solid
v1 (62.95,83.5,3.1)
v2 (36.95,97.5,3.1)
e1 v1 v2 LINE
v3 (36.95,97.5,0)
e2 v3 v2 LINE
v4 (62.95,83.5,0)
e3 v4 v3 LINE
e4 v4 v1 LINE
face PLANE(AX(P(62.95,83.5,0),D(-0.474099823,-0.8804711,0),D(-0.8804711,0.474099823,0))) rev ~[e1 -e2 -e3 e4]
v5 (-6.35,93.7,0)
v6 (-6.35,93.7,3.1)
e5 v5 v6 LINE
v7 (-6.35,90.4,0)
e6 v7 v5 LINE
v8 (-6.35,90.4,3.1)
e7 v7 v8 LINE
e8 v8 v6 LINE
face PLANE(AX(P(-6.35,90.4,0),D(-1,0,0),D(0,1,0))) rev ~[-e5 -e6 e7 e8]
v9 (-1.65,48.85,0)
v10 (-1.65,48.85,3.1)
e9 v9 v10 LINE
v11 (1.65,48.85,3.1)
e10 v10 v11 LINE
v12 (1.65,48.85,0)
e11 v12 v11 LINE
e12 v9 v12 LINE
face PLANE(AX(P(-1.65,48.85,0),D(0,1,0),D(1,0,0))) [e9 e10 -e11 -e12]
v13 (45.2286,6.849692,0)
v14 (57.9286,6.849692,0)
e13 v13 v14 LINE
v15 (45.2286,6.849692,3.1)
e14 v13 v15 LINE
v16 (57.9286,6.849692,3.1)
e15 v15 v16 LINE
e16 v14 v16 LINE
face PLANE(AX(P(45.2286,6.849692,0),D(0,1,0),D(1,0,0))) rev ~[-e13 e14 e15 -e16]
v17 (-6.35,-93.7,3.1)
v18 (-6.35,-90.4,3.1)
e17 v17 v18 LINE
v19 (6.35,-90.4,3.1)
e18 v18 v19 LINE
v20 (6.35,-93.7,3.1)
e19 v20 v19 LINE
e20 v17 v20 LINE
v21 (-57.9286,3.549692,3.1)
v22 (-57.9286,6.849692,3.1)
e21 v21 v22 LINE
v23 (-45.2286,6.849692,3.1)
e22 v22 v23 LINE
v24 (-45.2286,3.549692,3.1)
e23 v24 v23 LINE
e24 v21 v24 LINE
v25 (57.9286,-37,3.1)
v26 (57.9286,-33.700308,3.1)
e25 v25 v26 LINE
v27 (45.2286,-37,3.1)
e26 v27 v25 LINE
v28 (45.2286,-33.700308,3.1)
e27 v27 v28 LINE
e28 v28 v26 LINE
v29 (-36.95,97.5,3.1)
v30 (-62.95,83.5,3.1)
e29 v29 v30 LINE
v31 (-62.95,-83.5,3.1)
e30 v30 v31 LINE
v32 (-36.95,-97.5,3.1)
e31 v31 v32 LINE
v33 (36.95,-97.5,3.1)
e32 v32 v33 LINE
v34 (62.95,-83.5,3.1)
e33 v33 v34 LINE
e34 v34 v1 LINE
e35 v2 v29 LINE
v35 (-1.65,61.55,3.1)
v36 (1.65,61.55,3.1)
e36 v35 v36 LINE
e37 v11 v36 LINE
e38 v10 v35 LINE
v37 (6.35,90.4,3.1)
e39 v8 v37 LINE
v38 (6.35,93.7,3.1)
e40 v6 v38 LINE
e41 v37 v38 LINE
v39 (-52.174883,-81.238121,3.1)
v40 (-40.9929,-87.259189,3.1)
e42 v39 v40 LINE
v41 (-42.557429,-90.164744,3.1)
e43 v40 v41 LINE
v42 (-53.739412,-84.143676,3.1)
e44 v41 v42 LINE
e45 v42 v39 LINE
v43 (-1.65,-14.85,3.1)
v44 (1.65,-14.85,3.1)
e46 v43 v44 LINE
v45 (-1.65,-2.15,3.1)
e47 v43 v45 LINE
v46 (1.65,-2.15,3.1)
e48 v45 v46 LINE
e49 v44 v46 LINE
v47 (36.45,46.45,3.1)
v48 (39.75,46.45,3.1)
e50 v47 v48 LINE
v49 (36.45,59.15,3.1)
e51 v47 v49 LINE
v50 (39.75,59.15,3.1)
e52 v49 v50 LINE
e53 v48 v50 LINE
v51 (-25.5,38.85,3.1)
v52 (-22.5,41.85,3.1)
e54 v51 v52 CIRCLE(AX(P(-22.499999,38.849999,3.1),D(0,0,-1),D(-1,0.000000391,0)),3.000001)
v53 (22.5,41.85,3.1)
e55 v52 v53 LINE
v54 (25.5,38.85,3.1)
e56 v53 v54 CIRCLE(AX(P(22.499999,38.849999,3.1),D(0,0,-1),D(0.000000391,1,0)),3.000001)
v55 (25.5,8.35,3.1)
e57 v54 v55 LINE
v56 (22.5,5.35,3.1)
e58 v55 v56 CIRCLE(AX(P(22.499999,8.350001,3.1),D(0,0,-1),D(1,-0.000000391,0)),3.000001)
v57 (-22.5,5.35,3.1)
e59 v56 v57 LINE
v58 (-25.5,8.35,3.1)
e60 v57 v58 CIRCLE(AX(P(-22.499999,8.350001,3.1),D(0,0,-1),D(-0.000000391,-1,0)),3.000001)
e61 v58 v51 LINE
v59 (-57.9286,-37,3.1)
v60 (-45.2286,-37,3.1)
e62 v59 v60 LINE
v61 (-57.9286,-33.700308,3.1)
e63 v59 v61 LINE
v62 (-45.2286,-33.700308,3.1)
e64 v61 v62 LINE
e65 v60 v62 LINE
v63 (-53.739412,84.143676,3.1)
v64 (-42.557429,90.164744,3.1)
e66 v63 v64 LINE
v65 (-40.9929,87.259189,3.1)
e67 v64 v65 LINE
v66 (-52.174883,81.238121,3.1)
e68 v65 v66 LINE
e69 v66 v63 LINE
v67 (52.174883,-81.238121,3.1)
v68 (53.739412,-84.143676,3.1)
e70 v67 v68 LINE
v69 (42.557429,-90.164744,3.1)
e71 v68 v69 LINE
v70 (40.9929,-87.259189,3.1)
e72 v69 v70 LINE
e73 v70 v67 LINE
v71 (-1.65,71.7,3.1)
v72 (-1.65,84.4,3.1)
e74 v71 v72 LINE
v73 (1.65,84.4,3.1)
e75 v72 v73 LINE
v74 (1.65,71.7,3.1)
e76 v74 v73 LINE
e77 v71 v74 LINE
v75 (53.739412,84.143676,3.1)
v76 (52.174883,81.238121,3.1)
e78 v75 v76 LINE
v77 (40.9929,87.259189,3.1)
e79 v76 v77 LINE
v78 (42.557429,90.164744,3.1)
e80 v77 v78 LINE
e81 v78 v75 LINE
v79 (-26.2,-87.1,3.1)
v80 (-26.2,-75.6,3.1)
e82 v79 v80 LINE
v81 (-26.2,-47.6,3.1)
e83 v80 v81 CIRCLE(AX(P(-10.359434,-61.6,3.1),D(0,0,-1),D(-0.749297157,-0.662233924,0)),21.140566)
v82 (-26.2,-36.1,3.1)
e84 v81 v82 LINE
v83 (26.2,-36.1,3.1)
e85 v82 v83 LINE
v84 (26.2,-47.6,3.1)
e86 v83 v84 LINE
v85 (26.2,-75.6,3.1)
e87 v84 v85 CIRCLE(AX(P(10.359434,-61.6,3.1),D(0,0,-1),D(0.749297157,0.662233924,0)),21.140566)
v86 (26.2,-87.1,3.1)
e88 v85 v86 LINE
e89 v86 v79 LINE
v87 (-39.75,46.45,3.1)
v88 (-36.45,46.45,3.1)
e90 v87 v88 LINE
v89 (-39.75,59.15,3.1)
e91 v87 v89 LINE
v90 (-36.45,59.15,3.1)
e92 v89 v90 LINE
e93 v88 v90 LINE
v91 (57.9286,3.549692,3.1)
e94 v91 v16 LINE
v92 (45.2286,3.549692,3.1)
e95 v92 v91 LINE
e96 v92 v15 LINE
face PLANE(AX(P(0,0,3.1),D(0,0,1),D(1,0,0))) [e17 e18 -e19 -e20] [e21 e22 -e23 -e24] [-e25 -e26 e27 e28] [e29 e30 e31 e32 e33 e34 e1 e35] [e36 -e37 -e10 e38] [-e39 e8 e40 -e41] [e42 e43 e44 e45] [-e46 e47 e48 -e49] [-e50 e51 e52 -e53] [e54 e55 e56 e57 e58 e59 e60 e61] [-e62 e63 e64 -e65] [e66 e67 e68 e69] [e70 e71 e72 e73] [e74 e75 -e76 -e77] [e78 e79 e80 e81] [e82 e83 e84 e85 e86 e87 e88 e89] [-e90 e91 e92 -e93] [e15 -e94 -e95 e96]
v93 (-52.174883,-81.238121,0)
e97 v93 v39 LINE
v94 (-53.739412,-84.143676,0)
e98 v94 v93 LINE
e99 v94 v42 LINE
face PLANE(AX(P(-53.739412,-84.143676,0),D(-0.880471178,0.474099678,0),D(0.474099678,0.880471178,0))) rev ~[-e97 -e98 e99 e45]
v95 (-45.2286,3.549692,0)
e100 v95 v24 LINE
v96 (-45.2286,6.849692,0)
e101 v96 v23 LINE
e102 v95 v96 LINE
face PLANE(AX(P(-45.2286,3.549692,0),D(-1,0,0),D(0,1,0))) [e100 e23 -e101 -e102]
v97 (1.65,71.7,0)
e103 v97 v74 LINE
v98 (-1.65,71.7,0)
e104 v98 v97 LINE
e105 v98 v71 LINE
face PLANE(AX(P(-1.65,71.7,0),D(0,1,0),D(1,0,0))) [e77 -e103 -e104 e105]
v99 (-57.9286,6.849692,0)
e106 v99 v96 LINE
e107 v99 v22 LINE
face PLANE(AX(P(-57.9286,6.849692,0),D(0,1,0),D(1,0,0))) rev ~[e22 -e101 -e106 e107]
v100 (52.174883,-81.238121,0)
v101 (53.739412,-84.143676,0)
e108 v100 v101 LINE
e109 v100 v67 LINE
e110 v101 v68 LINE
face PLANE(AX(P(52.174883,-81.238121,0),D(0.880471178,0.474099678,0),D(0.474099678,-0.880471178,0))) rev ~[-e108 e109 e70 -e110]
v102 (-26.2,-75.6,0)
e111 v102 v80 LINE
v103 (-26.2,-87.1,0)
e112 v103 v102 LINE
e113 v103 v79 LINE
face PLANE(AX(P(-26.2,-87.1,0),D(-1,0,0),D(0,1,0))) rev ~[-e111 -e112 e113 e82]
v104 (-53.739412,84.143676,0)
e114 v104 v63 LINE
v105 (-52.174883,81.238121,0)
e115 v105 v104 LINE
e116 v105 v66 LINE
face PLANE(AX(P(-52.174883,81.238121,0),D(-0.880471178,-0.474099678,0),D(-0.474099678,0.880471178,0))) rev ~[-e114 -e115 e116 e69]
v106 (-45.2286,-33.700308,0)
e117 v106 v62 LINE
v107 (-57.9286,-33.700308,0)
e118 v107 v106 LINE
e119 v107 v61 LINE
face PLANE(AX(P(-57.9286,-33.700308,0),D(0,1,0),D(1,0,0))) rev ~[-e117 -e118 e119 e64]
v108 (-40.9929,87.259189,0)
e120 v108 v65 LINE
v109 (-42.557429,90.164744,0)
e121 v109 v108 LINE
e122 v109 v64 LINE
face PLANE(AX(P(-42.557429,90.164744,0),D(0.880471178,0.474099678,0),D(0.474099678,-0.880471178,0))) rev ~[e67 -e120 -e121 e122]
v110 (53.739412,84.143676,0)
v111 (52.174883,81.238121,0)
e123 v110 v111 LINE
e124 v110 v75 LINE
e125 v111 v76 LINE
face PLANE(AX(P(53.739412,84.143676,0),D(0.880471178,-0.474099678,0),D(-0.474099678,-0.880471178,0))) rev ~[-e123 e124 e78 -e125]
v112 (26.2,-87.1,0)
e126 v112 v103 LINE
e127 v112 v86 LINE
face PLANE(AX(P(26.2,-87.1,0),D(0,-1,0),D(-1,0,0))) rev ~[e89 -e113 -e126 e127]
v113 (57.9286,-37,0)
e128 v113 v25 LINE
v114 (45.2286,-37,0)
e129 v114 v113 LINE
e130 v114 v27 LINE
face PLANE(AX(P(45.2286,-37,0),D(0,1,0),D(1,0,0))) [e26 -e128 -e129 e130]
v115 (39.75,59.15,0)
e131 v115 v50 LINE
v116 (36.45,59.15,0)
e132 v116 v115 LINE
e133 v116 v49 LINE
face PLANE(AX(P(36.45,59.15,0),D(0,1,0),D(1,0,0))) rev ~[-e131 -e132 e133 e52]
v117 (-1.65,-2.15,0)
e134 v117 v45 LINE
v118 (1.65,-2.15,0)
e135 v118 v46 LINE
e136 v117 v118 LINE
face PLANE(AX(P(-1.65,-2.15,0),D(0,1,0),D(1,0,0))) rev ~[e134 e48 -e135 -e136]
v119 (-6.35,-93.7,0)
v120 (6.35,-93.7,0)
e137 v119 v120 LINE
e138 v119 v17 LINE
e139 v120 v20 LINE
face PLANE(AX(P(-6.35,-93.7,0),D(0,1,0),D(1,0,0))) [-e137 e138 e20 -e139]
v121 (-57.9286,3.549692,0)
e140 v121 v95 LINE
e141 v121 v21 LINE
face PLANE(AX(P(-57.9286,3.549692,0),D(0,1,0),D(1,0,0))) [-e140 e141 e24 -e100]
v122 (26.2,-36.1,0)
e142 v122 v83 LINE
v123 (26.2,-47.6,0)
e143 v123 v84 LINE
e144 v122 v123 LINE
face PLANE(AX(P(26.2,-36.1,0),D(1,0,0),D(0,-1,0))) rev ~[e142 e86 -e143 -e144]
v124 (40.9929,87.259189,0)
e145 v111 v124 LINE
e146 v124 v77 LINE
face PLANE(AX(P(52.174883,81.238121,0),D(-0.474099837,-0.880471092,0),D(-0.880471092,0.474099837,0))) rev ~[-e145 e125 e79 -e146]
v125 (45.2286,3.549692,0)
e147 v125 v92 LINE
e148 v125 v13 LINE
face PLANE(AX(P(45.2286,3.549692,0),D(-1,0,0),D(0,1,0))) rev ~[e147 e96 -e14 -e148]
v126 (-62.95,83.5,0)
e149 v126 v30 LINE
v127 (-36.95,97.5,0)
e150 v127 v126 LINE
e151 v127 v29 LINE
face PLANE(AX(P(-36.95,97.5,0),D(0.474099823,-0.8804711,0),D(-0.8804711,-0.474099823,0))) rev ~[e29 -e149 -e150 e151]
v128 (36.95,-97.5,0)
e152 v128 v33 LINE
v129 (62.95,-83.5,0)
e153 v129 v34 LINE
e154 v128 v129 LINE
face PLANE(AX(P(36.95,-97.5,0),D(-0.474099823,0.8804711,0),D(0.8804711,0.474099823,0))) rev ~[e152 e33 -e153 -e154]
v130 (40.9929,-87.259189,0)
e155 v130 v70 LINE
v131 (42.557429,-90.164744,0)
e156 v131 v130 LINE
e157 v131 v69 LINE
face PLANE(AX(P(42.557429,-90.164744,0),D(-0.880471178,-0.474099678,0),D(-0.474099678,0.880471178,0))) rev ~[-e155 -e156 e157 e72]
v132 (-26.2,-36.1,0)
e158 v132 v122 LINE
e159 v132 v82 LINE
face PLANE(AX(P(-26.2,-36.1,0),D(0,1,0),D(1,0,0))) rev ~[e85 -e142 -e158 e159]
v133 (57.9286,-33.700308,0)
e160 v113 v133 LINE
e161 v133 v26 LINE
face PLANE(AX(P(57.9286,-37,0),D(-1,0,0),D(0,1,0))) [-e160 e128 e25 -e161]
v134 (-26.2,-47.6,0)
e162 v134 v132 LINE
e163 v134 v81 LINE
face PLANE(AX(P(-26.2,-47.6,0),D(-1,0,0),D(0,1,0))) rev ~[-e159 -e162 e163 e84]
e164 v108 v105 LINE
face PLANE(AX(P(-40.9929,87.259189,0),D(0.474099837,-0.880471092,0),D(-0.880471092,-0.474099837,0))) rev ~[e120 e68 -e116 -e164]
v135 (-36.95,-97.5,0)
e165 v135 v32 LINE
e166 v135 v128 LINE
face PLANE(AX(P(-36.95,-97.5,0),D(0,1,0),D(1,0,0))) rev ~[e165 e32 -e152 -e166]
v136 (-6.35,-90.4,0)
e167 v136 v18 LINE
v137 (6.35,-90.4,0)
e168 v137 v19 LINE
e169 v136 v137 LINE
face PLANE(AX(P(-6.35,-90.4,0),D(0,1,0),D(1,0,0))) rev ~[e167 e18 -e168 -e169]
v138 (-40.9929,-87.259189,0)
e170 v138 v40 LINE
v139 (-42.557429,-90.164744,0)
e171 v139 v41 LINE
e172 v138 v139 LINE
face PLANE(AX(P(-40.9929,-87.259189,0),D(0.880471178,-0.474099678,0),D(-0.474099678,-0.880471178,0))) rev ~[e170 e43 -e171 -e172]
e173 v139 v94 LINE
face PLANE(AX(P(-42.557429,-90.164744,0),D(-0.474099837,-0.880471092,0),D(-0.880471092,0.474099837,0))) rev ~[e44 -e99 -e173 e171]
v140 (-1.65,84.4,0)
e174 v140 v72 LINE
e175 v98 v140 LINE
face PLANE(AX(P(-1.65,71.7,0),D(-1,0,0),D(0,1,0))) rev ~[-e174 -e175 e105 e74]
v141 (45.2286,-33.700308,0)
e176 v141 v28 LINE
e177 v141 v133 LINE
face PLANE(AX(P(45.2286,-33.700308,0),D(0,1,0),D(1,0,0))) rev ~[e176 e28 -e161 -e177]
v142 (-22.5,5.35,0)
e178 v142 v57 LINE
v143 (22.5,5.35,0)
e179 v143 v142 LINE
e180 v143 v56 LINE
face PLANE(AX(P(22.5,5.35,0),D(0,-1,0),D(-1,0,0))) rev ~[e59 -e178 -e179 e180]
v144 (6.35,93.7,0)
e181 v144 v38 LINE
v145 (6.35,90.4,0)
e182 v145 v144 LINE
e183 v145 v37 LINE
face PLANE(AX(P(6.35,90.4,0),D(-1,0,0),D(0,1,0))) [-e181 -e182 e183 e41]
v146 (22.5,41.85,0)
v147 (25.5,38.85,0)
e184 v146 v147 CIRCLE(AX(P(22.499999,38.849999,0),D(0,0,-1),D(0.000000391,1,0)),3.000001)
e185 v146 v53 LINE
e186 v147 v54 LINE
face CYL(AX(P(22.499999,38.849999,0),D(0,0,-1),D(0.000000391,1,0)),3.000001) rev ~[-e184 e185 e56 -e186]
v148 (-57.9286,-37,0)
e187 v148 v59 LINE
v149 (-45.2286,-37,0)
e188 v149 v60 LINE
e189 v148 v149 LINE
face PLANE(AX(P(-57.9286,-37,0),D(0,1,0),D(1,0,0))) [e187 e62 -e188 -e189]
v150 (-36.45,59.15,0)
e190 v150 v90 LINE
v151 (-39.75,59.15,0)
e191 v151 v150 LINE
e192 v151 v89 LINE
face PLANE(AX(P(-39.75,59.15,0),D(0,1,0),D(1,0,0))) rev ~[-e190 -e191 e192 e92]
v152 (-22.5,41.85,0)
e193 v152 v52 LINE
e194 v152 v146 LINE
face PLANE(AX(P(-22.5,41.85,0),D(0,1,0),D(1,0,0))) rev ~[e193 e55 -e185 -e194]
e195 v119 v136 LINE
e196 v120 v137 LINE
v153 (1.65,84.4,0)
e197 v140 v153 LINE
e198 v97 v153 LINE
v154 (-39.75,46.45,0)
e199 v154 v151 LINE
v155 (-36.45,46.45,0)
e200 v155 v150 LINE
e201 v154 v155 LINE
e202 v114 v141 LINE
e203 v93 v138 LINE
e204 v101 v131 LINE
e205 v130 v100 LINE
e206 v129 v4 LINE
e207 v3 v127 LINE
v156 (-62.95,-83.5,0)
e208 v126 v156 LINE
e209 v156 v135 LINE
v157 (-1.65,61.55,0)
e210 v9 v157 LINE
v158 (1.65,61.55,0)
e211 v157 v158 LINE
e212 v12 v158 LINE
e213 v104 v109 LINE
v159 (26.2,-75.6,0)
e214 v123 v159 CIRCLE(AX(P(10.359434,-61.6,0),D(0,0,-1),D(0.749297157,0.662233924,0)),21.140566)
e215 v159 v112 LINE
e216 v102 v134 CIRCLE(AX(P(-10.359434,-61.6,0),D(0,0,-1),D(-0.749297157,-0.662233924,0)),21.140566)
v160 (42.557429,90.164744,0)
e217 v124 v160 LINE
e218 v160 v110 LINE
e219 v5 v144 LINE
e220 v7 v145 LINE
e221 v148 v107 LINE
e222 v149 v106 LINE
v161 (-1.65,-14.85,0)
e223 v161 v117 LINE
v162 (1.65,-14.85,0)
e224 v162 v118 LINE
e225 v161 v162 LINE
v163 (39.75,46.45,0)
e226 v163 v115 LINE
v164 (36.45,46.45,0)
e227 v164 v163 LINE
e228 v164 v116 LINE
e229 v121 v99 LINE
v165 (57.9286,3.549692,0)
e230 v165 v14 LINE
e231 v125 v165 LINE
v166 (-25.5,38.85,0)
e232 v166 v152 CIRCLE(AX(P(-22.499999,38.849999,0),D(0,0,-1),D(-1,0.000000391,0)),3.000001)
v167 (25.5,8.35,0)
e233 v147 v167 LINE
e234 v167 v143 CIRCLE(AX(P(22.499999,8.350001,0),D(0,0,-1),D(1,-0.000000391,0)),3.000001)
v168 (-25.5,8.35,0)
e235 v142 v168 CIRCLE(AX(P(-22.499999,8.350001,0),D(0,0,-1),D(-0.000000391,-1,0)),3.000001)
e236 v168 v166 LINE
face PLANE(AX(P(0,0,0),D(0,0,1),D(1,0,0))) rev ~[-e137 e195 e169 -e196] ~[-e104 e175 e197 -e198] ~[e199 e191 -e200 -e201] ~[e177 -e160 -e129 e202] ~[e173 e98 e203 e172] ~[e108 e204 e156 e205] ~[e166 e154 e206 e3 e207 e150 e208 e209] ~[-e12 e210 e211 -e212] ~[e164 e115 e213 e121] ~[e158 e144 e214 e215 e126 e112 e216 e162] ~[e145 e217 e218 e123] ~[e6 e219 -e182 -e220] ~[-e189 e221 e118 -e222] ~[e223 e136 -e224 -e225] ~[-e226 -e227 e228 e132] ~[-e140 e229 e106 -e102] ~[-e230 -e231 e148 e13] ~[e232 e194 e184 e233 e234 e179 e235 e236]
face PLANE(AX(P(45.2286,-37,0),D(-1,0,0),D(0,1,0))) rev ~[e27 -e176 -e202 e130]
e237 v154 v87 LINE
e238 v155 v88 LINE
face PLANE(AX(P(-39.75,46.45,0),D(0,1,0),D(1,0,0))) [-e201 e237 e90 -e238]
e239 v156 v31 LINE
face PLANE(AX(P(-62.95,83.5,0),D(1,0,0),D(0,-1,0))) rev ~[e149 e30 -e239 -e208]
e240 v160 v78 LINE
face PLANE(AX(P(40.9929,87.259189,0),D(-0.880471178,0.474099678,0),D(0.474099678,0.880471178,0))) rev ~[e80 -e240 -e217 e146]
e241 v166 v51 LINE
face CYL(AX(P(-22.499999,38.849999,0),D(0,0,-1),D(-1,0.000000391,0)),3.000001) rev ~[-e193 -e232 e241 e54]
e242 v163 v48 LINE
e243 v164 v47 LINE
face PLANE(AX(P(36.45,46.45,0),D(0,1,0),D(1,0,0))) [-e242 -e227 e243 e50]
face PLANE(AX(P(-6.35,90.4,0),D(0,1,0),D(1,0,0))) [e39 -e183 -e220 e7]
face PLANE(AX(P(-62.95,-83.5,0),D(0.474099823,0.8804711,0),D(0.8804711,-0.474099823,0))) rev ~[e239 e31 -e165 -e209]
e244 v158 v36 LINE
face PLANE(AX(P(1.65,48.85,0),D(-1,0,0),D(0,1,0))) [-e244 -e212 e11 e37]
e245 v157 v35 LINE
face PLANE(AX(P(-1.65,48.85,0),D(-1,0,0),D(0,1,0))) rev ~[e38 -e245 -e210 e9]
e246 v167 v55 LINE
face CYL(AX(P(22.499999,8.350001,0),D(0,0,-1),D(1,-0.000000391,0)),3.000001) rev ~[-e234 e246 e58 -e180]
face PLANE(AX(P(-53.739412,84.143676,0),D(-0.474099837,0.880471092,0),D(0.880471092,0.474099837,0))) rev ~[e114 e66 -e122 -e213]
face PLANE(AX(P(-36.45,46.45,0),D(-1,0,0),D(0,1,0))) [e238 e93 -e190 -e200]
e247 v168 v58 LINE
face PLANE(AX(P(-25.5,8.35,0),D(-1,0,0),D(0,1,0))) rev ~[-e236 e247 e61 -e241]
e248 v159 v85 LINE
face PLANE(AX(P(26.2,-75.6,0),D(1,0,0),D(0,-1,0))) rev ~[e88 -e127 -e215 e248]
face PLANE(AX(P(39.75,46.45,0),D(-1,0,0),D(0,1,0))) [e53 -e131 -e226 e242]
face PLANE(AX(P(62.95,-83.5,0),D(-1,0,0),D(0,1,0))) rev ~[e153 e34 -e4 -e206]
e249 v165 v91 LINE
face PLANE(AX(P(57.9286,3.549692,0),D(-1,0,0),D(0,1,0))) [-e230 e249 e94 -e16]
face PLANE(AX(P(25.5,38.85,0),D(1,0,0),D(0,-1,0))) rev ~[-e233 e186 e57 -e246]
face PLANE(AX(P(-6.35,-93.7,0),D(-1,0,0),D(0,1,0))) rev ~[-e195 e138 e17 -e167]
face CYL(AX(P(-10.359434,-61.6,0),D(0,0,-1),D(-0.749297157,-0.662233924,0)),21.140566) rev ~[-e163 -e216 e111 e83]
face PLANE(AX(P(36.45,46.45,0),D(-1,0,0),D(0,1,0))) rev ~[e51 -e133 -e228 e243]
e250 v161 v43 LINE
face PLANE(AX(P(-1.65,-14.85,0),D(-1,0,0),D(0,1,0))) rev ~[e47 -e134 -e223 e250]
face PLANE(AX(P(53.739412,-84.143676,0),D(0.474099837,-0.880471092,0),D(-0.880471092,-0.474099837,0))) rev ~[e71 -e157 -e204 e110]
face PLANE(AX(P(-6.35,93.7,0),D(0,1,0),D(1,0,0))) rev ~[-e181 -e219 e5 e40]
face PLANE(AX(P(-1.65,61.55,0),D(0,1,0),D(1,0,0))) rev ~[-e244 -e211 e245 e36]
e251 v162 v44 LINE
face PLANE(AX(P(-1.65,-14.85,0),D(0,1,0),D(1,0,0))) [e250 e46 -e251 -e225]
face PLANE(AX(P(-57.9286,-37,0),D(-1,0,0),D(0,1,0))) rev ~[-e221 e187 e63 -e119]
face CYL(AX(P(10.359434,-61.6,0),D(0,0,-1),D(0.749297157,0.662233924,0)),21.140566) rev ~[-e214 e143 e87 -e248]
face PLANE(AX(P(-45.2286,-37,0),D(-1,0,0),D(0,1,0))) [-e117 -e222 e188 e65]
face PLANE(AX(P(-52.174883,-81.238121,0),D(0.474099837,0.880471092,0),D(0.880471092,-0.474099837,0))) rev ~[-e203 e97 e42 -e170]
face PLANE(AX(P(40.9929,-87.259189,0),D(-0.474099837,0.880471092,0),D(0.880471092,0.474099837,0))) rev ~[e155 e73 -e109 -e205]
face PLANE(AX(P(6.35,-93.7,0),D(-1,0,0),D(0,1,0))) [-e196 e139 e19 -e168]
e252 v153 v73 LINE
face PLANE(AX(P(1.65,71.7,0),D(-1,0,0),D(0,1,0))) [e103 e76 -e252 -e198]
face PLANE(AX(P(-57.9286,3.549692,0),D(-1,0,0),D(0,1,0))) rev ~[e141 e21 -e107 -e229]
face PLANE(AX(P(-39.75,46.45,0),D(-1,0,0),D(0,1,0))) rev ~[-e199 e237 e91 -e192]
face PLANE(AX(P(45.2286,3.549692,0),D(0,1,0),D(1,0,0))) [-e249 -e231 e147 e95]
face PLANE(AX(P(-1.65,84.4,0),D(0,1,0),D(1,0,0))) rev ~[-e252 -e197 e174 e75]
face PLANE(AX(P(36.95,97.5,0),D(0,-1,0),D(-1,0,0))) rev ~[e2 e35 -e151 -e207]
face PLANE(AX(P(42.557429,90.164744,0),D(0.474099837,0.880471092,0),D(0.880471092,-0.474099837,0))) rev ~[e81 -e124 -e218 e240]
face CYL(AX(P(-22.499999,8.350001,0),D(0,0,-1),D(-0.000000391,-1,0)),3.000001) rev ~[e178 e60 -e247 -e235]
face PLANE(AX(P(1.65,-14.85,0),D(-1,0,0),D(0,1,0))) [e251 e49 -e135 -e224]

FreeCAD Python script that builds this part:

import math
import FreeCAD as App
import Part
import Sketcher
from FreeCAD import Vector
Q = App.Units.Quantity

doc = App.newDocument("Part")
body = doc.addObject("PartDesign::Body", "Body")

sketch1 = body.newObject("Sketcher::SketchObject", "Sketch")
sketch1.AttachmentSupport = (doc.getObject("XY_Plane"), [""])
sketch1.MapMode = "FlatFace"
sketch1.addGeometry(Part.LineSegment(Vector(-63, -83.5, 0), Vector(-37, -97.5, 0)), False)
sketch1.addGeometry(Part.LineSegment(Vector(-37, -97.5, 0), Vector(37, -97.5, 0)), False)
sketch1.addGeometry(Part.LineSegment(Vector(37, -97.5, 0), Vector(63, -83.5, 0)), False)
sketch1.addGeometry(Part.LineSegment(Vector(63, -83.5, 0), Vector(63, 83.5, 0)), False)
sketch1.addGeometry(Part.LineSegment(Vector(63, 83.5, 0), Vector(37, 97.5, 0)), False)
sketch1.addGeometry(Part.LineSegment(Vector(37, 97.5, 0), Vector(-37, 97.5, 0)), False)
sketch1.addGeometry(Part.LineSegment(Vector(-37, 97.5, 0), Vector(-63, 83.5, 0)), False)
sketch1.addGeometry(Part.LineSegment(Vector(-63, 83.5, 0), Vector(-63, -83.5, 0)), False)
sketch1.addGeometry(Part.LineSegment(Vector(-42.6, -90.2, 0), Vector(-53.7, -84.1, 0)), False)
sketch1.addGeometry(Part.LineSegment(Vector(-53.7, -84.1, 0), Vector(-52.2, -81.2, 0)), False)
sketch1.addGeometry(Part.LineSegment(Vector(-52.2, -81.2, 0), Vector(-41, -87.3, 0)), False)
sketch1.addGeometry(Part.LineSegment(Vector(-41, -87.3, 0), Vector(-42.6, -90.2, 0)), False)
sketch1.addGeometry(Part.LineSegment(Vector(-45.2, -37, 0), Vector(-57.9, -37, 0)), False)
sketch1.addGeometry(Part.LineSegment(Vector(-57.9, -37, 0), Vector(-57.9, -33.7, 0)), False)
sketch1.addGeometry(Part.LineSegment(Vector(-57.9, -33.7, 0), Vector(-45.2, -33.7, 0)), False)
sketch1.addGeometry(Part.LineSegment(Vector(-45.2, -33.7, 0), Vector(-45.2, -37, 0)), False)
sketch1.addGeometry(Part.LineSegment(Vector(6.3, -93.7, 0), Vector(-6.3, -93.7, 0)), False)
sketch1.addGeometry(Part.LineSegment(Vector(-6.3, -93.7, 0), Vector(-6.3, -90.4, 0)), False)
sketch1.addGeometry(Part.LineSegment(Vector(-6.3, -90.4, 0), Vector(6.3, -90.4, 0)), False)
sketch1.addGeometry(Part.LineSegment(Vector(6.3, -90.4, 0), Vector(6.3, -93.7, 0)), False)
sketch1.addGeometry(Part.ArcOfCircle(Part.Circle(Vector(-10.4, -61.6, 0), Vector(0, 0, 1), 21.1), math.radians(139), math.radians(221)), False)
sketch1.addGeometry(Part.LineSegment(Vector(-26.2, -47.6, 0), Vector(-26.2, -36.1, 0)), False)
sketch1.addGeometry(Part.LineSegment(Vector(-26.2, -36.1, 0), Vector(26.2, -36.1, 0)), False)
sketch1.addGeometry(Part.LineSegment(Vector(26.2, -36.1, 0), Vector(26.2, -47.6, 0)), False)
sketch1.addGeometry(Part.ArcOfCircle(Part.Circle(Vector(10.4, -61.6, 0), Vector(0, 0, 1), 21.1), math.radians(-41), math.radians(41)), False)
sketch1.addGeometry(Part.LineSegment(Vector(26.2, -75.6, 0), Vector(26.2, -87.1, 0)), False)
sketch1.addGeometry(Part.LineSegment(Vector(26.2, -87.1, 0), Vector(-26.2, -87.1, 0)), False)
sketch1.addGeometry(Part.LineSegment(Vector(-26.2, -87.1, 0), Vector(-26.2, -75.6, 0)), False)
sketch1.addGeometry(Part.LineSegment(Vector(41, -87.3, 0), Vector(52.2, -81.2, 0)), False)
sketch1.addGeometry(Part.LineSegment(Vector(52.2, -81.2, 0), Vector(53.7, -84.1, 0)), False)
sketch1.addGeometry(Part.LineSegment(Vector(53.7, -84.1, 0), Vector(42.6, -90.2, 0)), False)
sketch1.addGeometry(Part.LineSegment(Vector(42.6, -90.2, 0), Vector(41, -87.3, 0)), False)
sketch1.addGeometry(Part.LineSegment(Vector(1.6, -14.8, 0), Vector(-1.6, -14.8, 0)), False)
sketch1.addGeometry(Part.LineSegment(Vector(-1.6, -14.8, 0), Vector(-1.6, -2.1, 0)), False)
sketch1.addGeometry(Part.LineSegment(Vector(-1.6, -2.1, 0), Vector(1.6, -2.1, 0)), False)
sketch1.addGeometry(Part.LineSegment(Vector(1.6, -2.1, 0), Vector(1.6, -14.8, 0)), False)
sketch1.addGeometry(Part.LineSegment(Vector(57.9, -37, 0), Vector(45.2, -37, 0)), False)
sketch1.addGeometry(Part.LineSegment(Vector(45.2, -37, 0), Vector(45.2, -33.7, 0)), False)
sketch1.addGeometry(Part.LineSegment(Vector(45.2, -33.7, 0), Vector(57.9, -33.7, 0)), False)
sketch1.addGeometry(Part.LineSegment(Vector(57.9, -33.7, 0), Vector(57.9, -37, 0)), False)
sketch1.addGeometry(Part.LineSegment(Vector(-45.2, 3.5, 0), Vector(-57.9, 3.5, 0)), False)
sketch1.addGeometry(Part.LineSegment(Vector(-57.9, 3.5, 0), Vector(-57.9, 6.8, 0)), False)
sketch1.addGeometry(Part.LineSegment(Vector(-57.9, 6.8, 0), Vector(-45.2, 6.8, 0)), False)
sketch1.addGeometry(Part.LineSegment(Vector(-45.2, 6.8, 0), Vector(-45.2, 3.5, 0)), False)
sketch1.addGeometry(Part.LineSegment(Vector(-36.5, 46.5, 0), Vector(-39.8, 46.5, 0)), False)
sketch1.addGeometry(Part.LineSegment(Vector(-39.8, 46.5, 0), Vector(-39.8, 59.1, 0)), False)
sketch1.addGeometry(Part.LineSegment(Vector(-39.8, 59.1, 0), Vector(-36.5, 59.1, 0)), False)
sketch1.addGeometry(Part.LineSegment(Vector(-36.5, 59.1, 0), Vector(-36.5, 46.5, 0)), False)
sketch1.addGeometry(Part.LineSegment(Vector(-53.7, 84.1, 0), Vector(-42.6, 90.2, 0)), False)
sketch1.addGeometry(Part.LineSegment(Vector(-42.6, 90.2, 0), Vector(-41, 87.3, 0)), False)
sketch1.addGeometry(Part.LineSegment(Vector(-41, 87.3, 0), Vector(-52.2, 81.2, 0)), False)
sketch1.addGeometry(Part.LineSegment(Vector(-52.2, 81.2, 0), Vector(-53.7, 84.1, 0)), False)
sketch1.addGeometry(Part.ArcOfCircle(Part.Circle(Vector(22.5, 8.4, 0), Vector(0, 0, 1), 3), math.radians(-90), math.radians(0)), False)
sketch1.addGeometry(Part.LineSegment(Vector(22.5, 5.3, 0), Vector(-22.5, 5.3, 0)), False)
sketch1.addGeometry(Part.ArcOfCircle(Part.Circle(Vector(-22.5, 8.4, 0), Vector(0, 0, 1), 3), math.radians(-180), math.radians(-90)), False)
sketch1.addGeometry(Part.LineSegment(Vector(-25.5, 8.3, 0), Vector(-25.5, 38.9, 0)), False)
sketch1.addGeometry(Part.ArcOfCircle(Part.Circle(Vector(-22.5, 38.8, 0), Vector(0, 0, 1), 3), math.radians(90), math.radians(180)), False)
sketch1.addGeometry(Part.LineSegment(Vector(-22.5, 41.9, 0), Vector(22.5, 41.9, 0)), False)
sketch1.addGeometry(Part.ArcOfCircle(Part.Circle(Vector(22.5, 38.8, 0), Vector(0, 0, 1), 3), math.radians(0), math.radians(90)), False)
sketch1.addGeometry(Part.LineSegment(Vector(25.5, 38.9, 0), Vector(25.5, 8.3, 0)), False)
sketch1.addGeometry(Part.LineSegment(Vector(57.9, 3.5, 0), Vector(45.2, 3.5, 0)), False)
sketch1.addGeometry(Part.LineSegment(Vector(45.2, 3.5, 0), Vector(45.2, 6.8, 0)), False)
sketch1.addGeometry(Part.LineSegment(Vector(45.2, 6.8, 0), Vector(57.9, 6.8, 0)), False)
sketch1.addGeometry(Part.LineSegment(Vector(57.9, 6.8, 0), Vector(57.9, 3.5, 0)), False)
sketch1.addGeometry(Part.LineSegment(Vector(1.6, 48.9, 0), Vector(-1.6, 48.9, 0)), False)
sketch1.addGeometry(Part.LineSegment(Vector(-1.6, 48.9, 0), Vector(-1.6, 61.5, 0)), False)
sketch1.addGeometry(Part.LineSegment(Vector(-1.6, 61.5, 0), Vector(1.6, 61.5, 0)), False)
sketch1.addGeometry(Part.LineSegment(Vector(1.6, 61.5, 0), Vector(1.6, 48.9, 0)), False)
sketch1.addGeometry(Part.LineSegment(Vector(1.6, 71.7, 0), Vector(-1.6, 71.7, 0)), False)
sketch1.addGeometry(Part.LineSegment(Vector(-1.6, 71.7, 0), Vector(-1.6, 84.4, 0)), False)
sketch1.addGeometry(Part.LineSegment(Vector(-1.6, 84.4, 0), Vector(1.6, 84.4, 0)), False)
sketch1.addGeometry(Part.LineSegment(Vector(1.6, 84.4, 0), Vector(1.6, 71.7, 0)), False)
sketch1.addGeometry(Part.LineSegment(Vector(6.3, 90.4, 0), Vector(-6.3, 90.4, 0)), False)
sketch1.addGeometry(Part.LineSegment(Vector(-6.3, 90.4, 0), Vector(-6.3, 93.7, 0)), False)
sketch1.addGeometry(Part.LineSegment(Vector(-6.3, 93.7, 0), Vector(6.3, 93.7, 0)), False)
sketch1.addGeometry(Part.LineSegment(Vector(6.3, 93.7, 0), Vector(6.3, 90.4, 0)), False)
sketch1.addGeometry(Part.LineSegment(Vector(39.8, 46.5, 0), Vector(36.5, 46.5, 0)), False)
sketch1.addGeometry(Part.LineSegment(Vector(36.5, 46.5, 0), Vector(36.5, 59.1, 0)), False)
sketch1.addGeometry(Part.LineSegment(Vector(36.5, 59.1, 0), Vector(39.8, 59.1, 0)), False)
sketch1.addGeometry(Part.LineSegment(Vector(39.8, 59.1, 0), Vector(39.8, 46.5, 0)), False)
sketch1.addGeometry(Part.LineSegment(Vector(53.7, 84.1, 0), Vector(52.2, 81.2, 0)), False)
sketch1.addGeometry(Part.LineSegment(Vector(52.2, 81.2, 0), Vector(41, 87.3, 0)), False)
sketch1.addGeometry(Part.LineSegment(Vector(41, 87.3, 0), Vector(42.6, 90.2, 0)), False)
sketch1.addGeometry(Part.LineSegment(Vector(42.6, 90.2, 0), Vector(53.7, 84.1, 0)), False)
sketch1.addConstraint(Sketcher.Constraint("Coincident", 0, 2, 1, 1))
sketch1.addConstraint(Sketcher.Constraint("Coincident", 1, 2, 2, 1))
sketch1.addConstraint(Sketcher.Constraint("Coincident", 2, 2, 3, 1))
sketch1.addConstraint(Sketcher.Constraint("Coincident", 3, 2, 4, 1))
sketch1.addConstraint(Sketcher.Constraint("Coincident", 4, 2, 5, 1))
sketch1.addConstraint(Sketcher.Constraint("Coincident", 5, 2, 6, 1))
sketch1.addConstraint(Sketcher.Constraint("Coincident", 6, 2, 7, 1))
sketch1.addConstraint(Sketcher.Constraint("Coincident", 7, 2, 0, 1))
sketch1.addConstraint(Sketcher.Constraint("Coincident", 8, 2, 9, 1))
sketch1.addConstraint(Sketcher.Constraint("Coincident", 9, 2, 10, 1))
sketch1.addConstraint(Sketcher.Constraint("Coincident", 10, 2, 11, 1))
sketch1.addConstraint(Sketcher.Constraint("Coincident", 11, 2, 8, 1))
sketch1.addConstraint(Sketcher.Constraint("Coincident", 12, 2, 13, 1))
sketch1.addConstraint(Sketcher.Constraint("Coincident", 13, 2, 14, 1))
sketch1.addConstraint(Sketcher.Constraint("Coincident", 14, 2, 15, 1))
sketch1.addConstraint(Sketcher.Constraint("Coincident", 15, 2, 12, 1))
sketch1.addConstraint(Sketcher.Constraint("Coincident", 16, 2, 17, 1))
sketch1.addConstraint(Sketcher.Constraint("Coincident", 17, 2, 18, 1))
sketch1.addConstraint(Sketcher.Constraint("Coincident", 18, 2, 19, 1))
sketch1.addConstraint(Sketcher.Constraint("Coincident", 19, 2, 16, 1))
sketch1.addConstraint(Sketcher.Constraint("Coincident", 20, 1, 21, 1))
sketch1.addConstraint(Sketcher.Constraint("Coincident", 21, 2, 22, 1))
sketch1.addConstraint(Sketcher.Constraint("Coincident", 22, 2, 23, 1))
sketch1.addConstraint(Sketcher.Constraint("Coincident", 23, 2, 24, 2))
sketch1.addConstraint(Sketcher.Constraint("Coincident", 24, 1, 25, 1))
sketch1.addConstraint(Sketcher.Constraint("Coincident", 25, 2, 26, 1))
sketch1.addConstraint(Sketcher.Constraint("Coincident", 26, 2, 27, 1))
sketch1.addConstraint(Sketcher.Constraint("Coincident", 27, 2, 20, 2))
sketch1.addConstraint(Sketcher.Constraint("Coincident", 28, 2, 29, 1))
sketch1.addConstraint(Sketcher.Constraint("Coincident", 29, 2, 30, 1))
sketch1.addConstraint(Sketcher.Constraint("Coincident", 30, 2, 31, 1))
sketch1.addConstraint(Sketcher.Constraint("Coincident", 31, 2, 28, 1))
sketch1.addConstraint(Sketcher.Constraint("Coincident", 32, 2, 33, 1))
sketch1.addConstraint(Sketcher.Constraint("Coincident", 33, 2, 34, 1))
sketch1.addConstraint(Sketcher.Constraint("Coincident", 34, 2, 35, 1))
sketch1.addConstraint(Sketcher.Constraint("Coincident", 35, 2, 32, 1))
sketch1.addConstraint(Sketcher.Constraint("Coincident", 36, 2, 37, 1))
sketch1.addConstraint(Sketcher.Constraint("Coincident", 37, 2, 38, 1))
sketch1.addConstraint(Sketcher.Constraint("Coincident", 38, 2, 39, 1))
sketch1.addConstraint(Sketcher.Constraint("Coincident", 39, 2, 36, 1))
sketch1.addConstraint(Sketcher.Constraint("Coincident", 40, 2, 41, 1))
sketch1.addConstraint(Sketcher.Constraint("Coincident", 41, 2, 42, 1))
sketch1.addConstraint(Sketcher.Constraint("Coincident", 42, 2, 43, 1))
sketch1.addConstraint(Sketcher.Constraint("Coincident", 43, 2, 40, 1))
sketch1.addConstraint(Sketcher.Constraint("Coincident", 44, 2, 45, 1))
sketch1.addConstraint(Sketcher.Constraint("Coincident", 45, 2, 46, 1))
sketch1.addConstraint(Sketcher.Constraint("Coincident", 46, 2, 47, 1))
sketch1.addConstraint(Sketcher.Constraint("Coincident", 47, 2, 44, 1))
sketch1.addConstraint(Sketcher.Constraint("Coincident", 48, 2, 49, 1))
sketch1.addConstraint(Sketcher.Constraint("Coincident", 49, 2, 50, 1))
sketch1.addConstraint(Sketcher.Constraint("Coincident", 50, 2, 51, 1))
sketch1.addConstraint(Sketcher.Constraint("Coincident", 51, 2, 48, 1))
sketch1.addConstraint(Sketcher.Constraint("Tangent", 52, 1, 53, 1))
sketch1.addConstraint(Sketcher.Constraint("Tangent", 53, 2, 54, 2))
sketch1.addConstraint(Sketcher.Constraint("Tangent", 54, 1, 55, 1))
sketch1.addConstraint(Sketcher.Constraint("Tangent", 55, 2, 56, 2))
sketch1.addConstraint(Sketcher.Constraint("Tangent", 56, 1, 57, 1))
sketch1.addConstraint(Sketcher.Constraint("Tangent", 57, 2, 58, 2))
sketch1.addConstraint(Sketcher.Constraint("Tangent", 58, 1, 59, 1))
sketch1.addConstraint(Sketcher.Constraint("Tangent", 59, 2, 52, 2))
sketch1.addConstraint(Sketcher.Constraint("Coincident", 60, 2, 61, 1))
sketch1.addConstraint(Sketcher.Constraint("Coincident", 61, 2, 62, 1))
sketch1.addConstraint(Sketcher.Constraint("Coincident", 62, 2, 63, 1))
sketch1.addConstraint(Sketcher.Constraint("Coincident", 63, 2, 60, 1))
sketch1.addConstraint(Sketcher.Constraint("Coincident", 64, 2, 65, 1))
sketch1.addConstraint(Sketcher.Constraint("Coincident", 65, 2, 66, 1))
sketch1.addConstraint(Sketcher.Constraint("Coincident", 66, 2, 67, 1))
sketch1.addConstraint(Sketcher.Constraint("Coincident", 67, 2, 64, 1))
sketch1.addConstraint(Sketcher.Constraint("Coincident", 68, 2, 69, 1))
sketch1.addConstraint(Sketcher.Constraint("Coincident", 69, 2, 70, 1))
sketch1.addConstraint(Sketcher.Constraint("Coincident", 70, 2, 71, 1))
sketch1.addConstraint(Sketcher.Constraint("Coincident", 71, 2, 68, 1))
sketch1.addConstraint(Sketcher.Constraint("Coincident", 72, 2, 73, 1))
sketch1.addConstraint(Sketcher.Constraint("Coincident", 73, 2, 74, 1))
sketch1.addConstraint(Sketcher.Constraint("Coincident", 74, 2, 75, 1))
sketch1.addConstraint(Sketcher.Constraint("Coincident", 75, 2, 72, 1))
sketch1.addConstraint(Sketcher.Constraint("Coincident", 76, 2, 77, 1))
sketch1.addConstraint(Sketcher.Constraint("Coincident", 77, 2, 78, 1))
sketch1.addConstraint(Sketcher.Constraint("Coincident", 78, 2, 79, 1))
sketch1.addConstraint(Sketcher.Constraint("Coincident", 79, 2, 76, 1))
sketch1.addConstraint(Sketcher.Constraint("Coincident", 80, 2, 81, 1))
sketch1.addConstraint(Sketcher.Constraint("Coincident", 81, 2, 82, 1))
sketch1.addConstraint(Sketcher.Constraint("Coincident", 82, 2, 83, 1))
sketch1.addConstraint(Sketcher.Constraint("Coincident", 83, 2, 80, 1))
sketch1.addConstraint(Sketcher.Constraint("Horizontal", 1))
sketch1.addConstraint(Sketcher.Constraint("Vertical", 3))
sketch1.addConstraint(Sketcher.Constraint("Horizontal", 5))
sketch1.addConstraint(Sketcher.Constraint("Vertical", 7))
sketch1.addConstraint(Sketcher.Constraint("Horizontal", 12))
sketch1.addConstraint(Sketcher.Constraint("Vertical", 13))
sketch1.addConstraint(Sketcher.Constraint("Horizontal", 14))
sketch1.addConstraint(Sketcher.Constraint("Vertical", 15))
sketch1.addConstraint(Sketcher.Constraint("Horizontal", 16))
sketch1.addConstraint(Sketcher.Constraint("Vertical", 17))
sketch1.addConstraint(Sketcher.Constraint("Horizontal", 18))
sketch1.addConstraint(Sketcher.Constraint("Vertical", 19))
sketch1.addConstraint(Sketcher.Constraint("Vertical", 21))
sketch1.addConstraint(Sketcher.Constraint("Horizontal", 22))
sketch1.addConstraint(Sketcher.Constraint("Vertical", 23))
sketch1.addConstraint(Sketcher.Constraint("Vertical", 25))
sketch1.addConstraint(Sketcher.Constraint("Horizontal", 26))
sketch1.addConstraint(Sketcher.Constraint("Vertical", 27))
sketch1.addConstraint(Sketcher.Constraint("Horizontal", 32))
sketch1.addConstraint(Sketcher.Constraint("Vertical", 33))
sketch1.addConstraint(Sketcher.Constraint("Horizontal", 34))
sketch1.addConstraint(Sketcher.Constraint("Vertical", 35))
sketch1.addConstraint(Sketcher.Constraint("Horizontal", 36))
sketch1.addConstraint(Sketcher.Constraint("Vertical", 37))
sketch1.addConstraint(Sketcher.Constraint("Horizontal", 38))
sketch1.addConstraint(Sketcher.Constraint("Vertical", 39))
sketch1.addConstraint(Sketcher.Constraint("Horizontal", 40))
sketch1.addConstraint(Sketcher.Constraint("Vertical", 41))
sketch1.addConstraint(Sketcher.Constraint("Horizontal", 42))
sketch1.addConstraint(Sketcher.Constraint("Vertical", 43))
sketch1.addConstraint(Sketcher.Constraint("Horizontal", 44))
sketch1.addConstraint(Sketcher.Constraint("Vertical", 45))
sketch1.addConstraint(Sketcher.Constraint("Horizontal", 46))
sketch1.addConstraint(Sketcher.Constraint("Vertical", 47))
sketch1.addConstraint(Sketcher.Constraint("Horizontal", 53))
sketch1.addConstraint(Sketcher.Constraint("Vertical", 55))
sketch1.addConstraint(Sketcher.Constraint("Horizontal", 57))
sketch1.addConstraint(Sketcher.Constraint("Vertical", 59))
sketch1.addConstraint(Sketcher.Constraint("Horizontal", 60))
sketch1.addConstraint(Sketcher.Constraint("Vertical", 61))
sketch1.addConstraint(Sketcher.Constraint("Horizontal", 62))
sketch1.addConstraint(Sketcher.Constraint("Vertical", 63))
sketch1.addConstraint(Sketcher.Constraint("Horizontal", 64))
sketch1.addConstraint(Sketcher.Constraint("Vertical", 65))
sketch1.addConstraint(Sketcher.Constraint("Horizontal", 66))
sketch1.addConstraint(Sketcher.Constraint("Vertical", 67))
sketch1.addConstraint(Sketcher.Constraint("Horizontal", 68))
sketch1.addConstraint(Sketcher.Constraint("Vertical", 69))
sketch1.addConstraint(Sketcher.Constraint("Horizontal", 70))
sketch1.addConstraint(Sketcher.Constraint("Vertical", 71))
sketch1.addConstraint(Sketcher.Constraint("Horizontal", 72))
sketch1.addConstraint(Sketcher.Constraint("Vertical", 73))
sketch1.addConstraint(Sketcher.Constraint("Horizontal", 74))
sketch1.addConstraint(Sketcher.Constraint("Vertical", 75))
sketch1.addConstraint(Sketcher.Constraint("Horizontal", 76))
sketch1.addConstraint(Sketcher.Constraint("Vertical", 77))
sketch1.addConstraint(Sketcher.Constraint("Horizontal", 78))
sketch1.addConstraint(Sketcher.Constraint("Vertical", 79))
sketch1.addConstraint(Sketcher.Constraint("Equal", 20, 24))
sketch1.addConstraint(Sketcher.Constraint("Equal", 52, 54))
sketch1.addConstraint(Sketcher.Constraint("Equal", 54, 56))
sketch1.addConstraint(Sketcher.Constraint("Equal", 56, 58))
sketch1.addConstraint(Sketcher.Constraint("Symmetric", 0, 2, 4, 2, -1, 1))
sketch1.addConstraint(Sketcher.Constraint("Symmetric", 2, 2, 6, 2, -1, 1))
sketch1.addConstraint(Sketcher.Constraint("Symmetric", 30, 2, 48, 2, -1, 1))
sketch1.addConstraint(Sketcher.Constraint("Symmetric", 31, 2, 49, 2, -1, 1))
sketch1.addConstraint(Sketcher.Constraint("Symmetric", 28, 2, 50, 2, -1, 1))
sketch1.addConstraint(Sketcher.Constraint("Symmetric", 29, 2, 51, 2, -1, 1))
sketch1.addConstraint(Sketcher.Constraint("Symmetric", 18, 2, 72, 2, -1, 1))
sketch1.addConstraint(Sketcher.Constraint("Symmetric", 16, 2, 74, 2, -1, 1))
sketch1.addConstraint(Sketcher.Constraint("Symmetric", 9, 2, 80, 2, -1, 1))
sketch1.addConstraint(Sketcher.Constraint("Symmetric", 10, 2, 81, 2, -1, 1))
sketch1.addConstraint(Sketcher.Constraint("Symmetric", 11, 2, 82, 2, -1, 1))
sketch1.addConstraint(Sketcher.Constraint("Symmetric", 8, 2, 83, 2, -1, 1))
sketch1.addConstraint(Sketcher.Constraint("Symmetric", 20, 3, 24, 3, -2))
sketch1.addConstraint(Sketcher.Constraint("Symmetric", 9, 2, 28, 2, -2))
sketch1.addConstraint(Sketcher.Constraint("Symmetric", 8, 2, 29, 2, -2))
sketch1.addConstraint(Sketcher.Constraint("Symmetric", 11, 2, 30, 2, -2))
sketch1.addConstraint(Sketcher.Constraint("Symmetric", 10, 2, 31, 2, -2))
sketch1.addConstraint(Sketcher.Constraint("Symmetric", 15, 2, 36, 2, -2))
sketch1.addConstraint(Sketcher.Constraint("Symmetric", 13, 2, 38, 2, -2))
sketch1.addConstraint(Sketcher.Constraint("Symmetric", 43, 2, 60, 2, -2))
sketch1.addConstraint(Sketcher.Constraint("Symmetric", 41, 2, 62, 2, -2))
sketch1.addConstraint(Sketcher.Constraint("Symmetric", 47, 2, 76, 2, -2))
sketch1.addConstraint(Sketcher.Constraint("Symmetric", 45, 2, 78, 2, -2))
sketch1.addConstraint(Sketcher.Constraint("Parallel", 0, 4))
sketch1.addConstraint(Sketcher.Constraint("Parallel", 2, 6))
sketch1.addConstraint(Sketcher.Constraint("Parallel", 4, 8))
sketch1.addConstraint(Sketcher.Constraint("Perpendicular", 8, 9))
sketch1.addConstraint(Sketcher.Constraint("Perpendicular", 9, 10))
sketch1.addConstraint(Sketcher.Constraint("Perpendicular", 10, 11))
sketch1.addConstraint(Sketcher.Constraint("Parallel", 6, 28))
sketch1.addConstraint(Sketcher.Constraint("Horizontal", 3, 2, 6, 2))
sketch1.addConstraint(Sketcher.Constraint("Horizontal", 20, 1, 23, 2))
sketch1.addConstraint(Sketcher.Constraint("Horizontal", 24, 1, 27, 2))
sketch1.addConstraint(Sketcher.Constraint("Vertical", 23, 2, 24, 1))
sketch1.addConstraint(Sketcher.Constraint("Vertical", 13, 2, 40, 2))
sketch1.addConstraint(Sketcher.Constraint("Vertical", 15, 2, 42, 2))
sketch1.addConstraint(Sketcher.Constraint("Vertical", 33, 2, 64, 2))
sketch1.addConstraint(Sketcher.Constraint("Vertical", 35, 2, 66, 2))
sketch1.addConstraint(Sketcher.Constraint("Vertical", 65, 2, 68, 2))
sketch1.addConstraint(Sketcher.Constraint("Vertical", 67, 2, 70, 2))
sketch1.addConstraint(Sketcher.Constraint("Vertical", 17, 2, 72, 2))
sketch1.addConstraint(Sketcher.Constraint("Equal", 14, 16))
sketch1.addConstraint(Sketcher.Constraint("Equal", 34, 44))
sketch1.addConstraint(Sketcher.Constraint("Equal", 78, 17))
sketch1.addConstraint(Sketcher.Constraint("Equal", 23, 25))
sketch1.addConstraint(Sketcher.Constraint("Equal", 74, 33))
sketch1.addConstraint(Sketcher.Constraint("Equal", 19, 41))
sketch1.addConstraint(Sketcher.Constraint("Equal", 35, 45))
sketch1.addConstraint(Sketcher.Constraint("Equal", 47, 65))
sketch1.addConstraint(Sketcher.Constraint("Equal", 67, 69))
sketch1.addConstraint(Sketcher.Constraint("Radius", 52, Q("3.000001 mm")))
sketch1.addConstraint(Sketcher.Constraint("DistanceX", 53, 2, 53, 1, Q("45 mm")))
sketch1.addConstraint(Sketcher.Constraint("DistanceY", 3, 1, 3, 2, Q("167 mm")))
sketch1.addConstraint(Sketcher.Constraint("DistanceX", 1, 1, 1, 2, Q("73.9 mm")))
sketch1.addConstraint(Sketcher.Constraint("DistanceX", 12, 2, 12, 1, Q("12.7 mm")))
sketch1.addConstraint(Sketcher.Constraint("DistanceX", 22, 1, 22, 2, Q("52.4 mm")))
sketch1.addConstraint(Sketcher.Constraint("DistanceX", 32, 2, 32, 1, Q("3.3 mm")))
sketch1.addConstraint(Sketcher.Constraint("DistanceY", 21, 1, 21, 2, Q("11.5 mm")))
sketch1.addConstraint(Sketcher.Constraint("DistanceY", 55, 1, 55, 2, Q("30.5 mm")))
sketch1.addConstraint(Sketcher.Constraint("DistanceY", 12, 2, -1, 1, Q("37 mm")))
sketch1.addConstraint(Sketcher.Constraint("Distance", 8, Q("12.7 mm")))
sketch1.addConstraint(Sketcher.Constraint("Distance", 9, Q("3.3 mm")))
sketch1.addConstraint(Sketcher.Constraint("DistanceY", 20, 3, -1, 1, Q("61.6 mm")))
sketch1.addConstraint(Sketcher.Constraint("DistanceX", -1, 1, 52, 3, Q("22.499999 mm")))
sketch1.addConstraint(Sketcher.Constraint("DistanceY", 0, 2, -1, 1, Q("97.5 mm")))
sketch1.addConstraint(Sketcher.Constraint("DistanceY", 16, 2, -1, 1, Q("93.7 mm")))
sketch1.addConstraint(Sketcher.Constraint("DistanceY", 20, 1, -1, 1, Q("47.6 mm")))
sketch1.addConstraint(Sketcher.Constraint("DistanceY", -1, 1, 68, 2, Q("71.7 mm")))
sketch1.addConstraint(Sketcher.Constraint("DistanceY", -1, 1, 52, 3, Q("8.350001 mm")))
sketch1.addConstraint(Sketcher.Constraint("DistanceX", -1, 1, 2, 2, Q("62.95 mm")))
sketch1.addConstraint(Sketcher.Constraint("DistanceX", 32, 2, -1, 1, Q("1.65 mm")))
sketch1.addConstraint(Sketcher.Constraint("DistanceY", 32, 2, -1, 1, Q("14.85 mm")))
sketch1.addConstraint(Sketcher.Constraint("DistanceX", 44, 2, -1, 1, Q("39.75 mm")))
sketch1.addConstraint(Sketcher.Constraint("DistanceY", -1, 1, 44, 2, Q("46.45 mm")))
sketch1.addConstraint(Sketcher.Constraint("DistanceY", -1, 1, 64, 2, Q("48.85 mm")))
sketch1.addConstraint(Sketcher.Constraint("Radius", 20, Q("21.140566 mm")))
sketch1.addConstraint(Sketcher.Constraint("DistanceX", 10, 2, -1, 1, Q("40.9929 mm")))
sketch1.addConstraint(Sketcher.Constraint("DistanceX", 12, 2, -1, 1, Q("57.9286 mm")))
sketch1.addConstraint(Sketcher.Constraint("DistanceY", 13, 1, 13, 2, Q("3.299692 mm")))
sketch1.addConstraint(Sketcher.Constraint("DistanceY", 9, 2, -1, 1, Q("81.238121 mm")))
sketch1.addConstraint(Sketcher.Constraint("DistanceY", -1, 1, 40, 2, Q("3.549692 mm")))
pad1 = body.newObject("PartDesign::Pad", "Pad")
pad1.Profile = sketch1
pad1.Length = 3.1

doc.recompute()
